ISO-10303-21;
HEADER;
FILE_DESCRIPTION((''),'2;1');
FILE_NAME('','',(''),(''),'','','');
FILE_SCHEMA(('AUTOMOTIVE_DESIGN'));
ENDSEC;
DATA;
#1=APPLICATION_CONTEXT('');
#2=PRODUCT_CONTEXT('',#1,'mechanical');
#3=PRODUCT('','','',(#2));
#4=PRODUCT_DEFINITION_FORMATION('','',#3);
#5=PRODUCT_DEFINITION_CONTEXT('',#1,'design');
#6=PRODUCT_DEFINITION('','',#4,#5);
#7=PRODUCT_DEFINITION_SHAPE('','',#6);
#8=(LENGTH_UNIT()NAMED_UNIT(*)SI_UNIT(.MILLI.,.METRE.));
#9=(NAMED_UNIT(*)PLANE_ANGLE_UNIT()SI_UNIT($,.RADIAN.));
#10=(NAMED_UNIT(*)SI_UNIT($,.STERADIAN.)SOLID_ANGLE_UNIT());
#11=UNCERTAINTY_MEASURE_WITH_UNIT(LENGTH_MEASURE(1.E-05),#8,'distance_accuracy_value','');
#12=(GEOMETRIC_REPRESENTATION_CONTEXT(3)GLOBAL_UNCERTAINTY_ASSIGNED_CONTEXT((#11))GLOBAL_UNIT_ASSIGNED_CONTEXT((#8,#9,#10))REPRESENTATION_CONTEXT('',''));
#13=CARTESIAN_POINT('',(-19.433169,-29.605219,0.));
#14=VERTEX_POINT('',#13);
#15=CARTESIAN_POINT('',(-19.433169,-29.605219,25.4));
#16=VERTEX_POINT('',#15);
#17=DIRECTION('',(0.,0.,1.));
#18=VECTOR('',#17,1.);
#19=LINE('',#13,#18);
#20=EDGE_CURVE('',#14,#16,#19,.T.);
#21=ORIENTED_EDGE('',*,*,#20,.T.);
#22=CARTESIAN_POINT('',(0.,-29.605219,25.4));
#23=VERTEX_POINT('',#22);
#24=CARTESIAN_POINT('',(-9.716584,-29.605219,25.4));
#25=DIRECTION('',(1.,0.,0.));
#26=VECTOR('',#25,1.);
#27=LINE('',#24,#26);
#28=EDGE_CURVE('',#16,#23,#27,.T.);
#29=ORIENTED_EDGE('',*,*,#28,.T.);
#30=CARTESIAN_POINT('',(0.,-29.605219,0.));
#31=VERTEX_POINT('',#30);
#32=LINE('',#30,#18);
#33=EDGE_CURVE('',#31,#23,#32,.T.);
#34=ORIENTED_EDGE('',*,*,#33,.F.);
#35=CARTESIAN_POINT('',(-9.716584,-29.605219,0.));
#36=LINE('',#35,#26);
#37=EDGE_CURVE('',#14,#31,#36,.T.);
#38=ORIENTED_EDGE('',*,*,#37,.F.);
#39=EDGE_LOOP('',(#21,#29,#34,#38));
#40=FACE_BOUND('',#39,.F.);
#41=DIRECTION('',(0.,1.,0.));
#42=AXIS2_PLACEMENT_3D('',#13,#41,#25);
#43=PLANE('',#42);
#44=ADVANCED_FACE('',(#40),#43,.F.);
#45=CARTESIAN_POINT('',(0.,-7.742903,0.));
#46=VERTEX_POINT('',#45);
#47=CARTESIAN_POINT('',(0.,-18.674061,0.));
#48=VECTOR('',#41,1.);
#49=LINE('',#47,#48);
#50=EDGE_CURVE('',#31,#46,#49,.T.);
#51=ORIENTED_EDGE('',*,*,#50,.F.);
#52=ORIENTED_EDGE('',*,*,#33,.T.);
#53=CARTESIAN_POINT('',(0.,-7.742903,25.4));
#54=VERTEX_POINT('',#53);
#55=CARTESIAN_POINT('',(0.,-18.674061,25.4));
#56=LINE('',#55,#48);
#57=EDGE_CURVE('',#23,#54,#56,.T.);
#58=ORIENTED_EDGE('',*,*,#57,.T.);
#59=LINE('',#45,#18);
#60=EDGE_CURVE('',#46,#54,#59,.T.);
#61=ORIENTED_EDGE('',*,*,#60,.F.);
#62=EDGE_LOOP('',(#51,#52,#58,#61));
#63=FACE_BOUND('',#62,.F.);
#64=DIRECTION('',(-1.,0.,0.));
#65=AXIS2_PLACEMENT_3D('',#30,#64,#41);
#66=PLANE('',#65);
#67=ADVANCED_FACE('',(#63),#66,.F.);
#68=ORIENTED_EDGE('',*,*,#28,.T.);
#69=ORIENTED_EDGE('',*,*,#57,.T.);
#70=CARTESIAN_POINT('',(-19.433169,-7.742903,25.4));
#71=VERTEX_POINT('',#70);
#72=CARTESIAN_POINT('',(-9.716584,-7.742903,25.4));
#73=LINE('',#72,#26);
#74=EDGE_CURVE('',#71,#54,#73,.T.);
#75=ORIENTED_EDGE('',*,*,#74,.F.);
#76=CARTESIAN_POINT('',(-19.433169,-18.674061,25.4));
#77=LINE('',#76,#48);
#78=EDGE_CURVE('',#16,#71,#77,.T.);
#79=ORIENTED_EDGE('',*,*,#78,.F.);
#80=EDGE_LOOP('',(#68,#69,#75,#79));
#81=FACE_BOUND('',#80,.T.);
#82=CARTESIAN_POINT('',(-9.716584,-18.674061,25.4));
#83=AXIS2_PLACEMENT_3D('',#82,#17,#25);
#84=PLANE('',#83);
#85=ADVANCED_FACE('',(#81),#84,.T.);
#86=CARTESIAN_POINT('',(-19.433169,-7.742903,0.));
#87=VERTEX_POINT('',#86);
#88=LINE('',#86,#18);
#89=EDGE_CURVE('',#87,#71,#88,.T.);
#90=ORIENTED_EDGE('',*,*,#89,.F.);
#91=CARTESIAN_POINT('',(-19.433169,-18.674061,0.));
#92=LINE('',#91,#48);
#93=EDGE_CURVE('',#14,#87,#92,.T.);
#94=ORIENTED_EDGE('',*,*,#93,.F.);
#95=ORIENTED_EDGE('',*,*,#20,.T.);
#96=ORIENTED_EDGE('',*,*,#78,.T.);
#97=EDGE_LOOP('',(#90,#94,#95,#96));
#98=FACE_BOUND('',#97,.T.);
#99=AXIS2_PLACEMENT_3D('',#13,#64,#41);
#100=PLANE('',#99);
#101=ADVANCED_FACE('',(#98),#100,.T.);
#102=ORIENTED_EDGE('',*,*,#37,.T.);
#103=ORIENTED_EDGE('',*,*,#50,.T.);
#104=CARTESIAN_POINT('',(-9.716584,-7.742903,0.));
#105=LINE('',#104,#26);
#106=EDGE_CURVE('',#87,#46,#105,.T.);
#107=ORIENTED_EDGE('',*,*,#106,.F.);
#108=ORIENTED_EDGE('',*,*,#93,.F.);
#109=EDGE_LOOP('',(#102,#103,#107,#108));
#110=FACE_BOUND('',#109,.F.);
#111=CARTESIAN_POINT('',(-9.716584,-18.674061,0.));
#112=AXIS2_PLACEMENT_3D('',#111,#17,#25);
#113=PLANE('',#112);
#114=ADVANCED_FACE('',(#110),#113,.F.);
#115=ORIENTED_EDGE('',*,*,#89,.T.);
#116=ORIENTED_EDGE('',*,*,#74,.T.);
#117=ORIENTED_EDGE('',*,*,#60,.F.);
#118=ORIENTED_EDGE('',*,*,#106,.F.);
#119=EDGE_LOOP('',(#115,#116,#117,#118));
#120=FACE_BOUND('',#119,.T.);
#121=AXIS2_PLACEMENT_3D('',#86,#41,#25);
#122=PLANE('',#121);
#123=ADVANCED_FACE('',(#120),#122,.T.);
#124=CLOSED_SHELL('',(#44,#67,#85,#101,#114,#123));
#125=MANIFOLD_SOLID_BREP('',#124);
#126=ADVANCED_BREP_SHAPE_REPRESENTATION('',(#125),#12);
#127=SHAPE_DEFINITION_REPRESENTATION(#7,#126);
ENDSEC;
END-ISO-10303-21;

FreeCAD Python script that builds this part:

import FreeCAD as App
import Part
import Sketcher
from FreeCAD import Vector
Q = App.Units.Quantity

doc = App.newDocument("Part")
body = doc.addObject("PartDesign::Body", "Body")

sketch1 = body.newObject("Sketcher::SketchObject", "Sketch")
sketch1.AttachmentSupport = (doc.getObject("XY_Plane"), [""])
sketch1.MapMode = "FlatFace"
sketch1.addGeometry([
    Part.LineSegment(Vector(-51, 41, 0), Vector(-51, 7, 0)),
    Part.LineSegment(Vector(-51, 7, 0), Vector(-12, 7, 0)),
    Part.LineSegment(Vector(-12, 7, 0), Vector(-12, 41, 0)),
    Part.LineSegment(Vector(-12, 41, 0), Vector(-51, 41, 0)),
], False)
sketch1.addConstraint([
    Sketcher.Constraint("Coincident", 0, 2, 1, 1),
    Sketcher.Constraint("Coincident", 1, 2, 2, 1),
    Sketcher.Constraint("Coincident", 2, 2, 3, 1),
    Sketcher.Constraint("Coincident", 3, 2, 0, 1),
    Sketcher.Constraint("Vertical", 0),
    Sketcher.Constraint("Horizontal", 1),
    Sketcher.Constraint("Vertical", 2),
    Sketcher.Constraint("Horizontal", 3),
    Sketcher.Constraint("DistanceX", 1, 1, 1, 2, 39.17323),
    Sketcher.Constraint("DistanceY", 0, 2, 0, 1, 34.004369),
    Sketcher.Constraint("DistanceY", -1, 1, 0, 2, 6.827711),
    Sketcher.Constraint("DistanceX", 0, 2, -1, 1, 50.713018),
])
pad1 = body.newObject("PartDesign::Pad", "Pad")
pad1.Profile = sketch1
pad1.Length = Q("1 in")
body2 = doc.addObject("PartDesign::Body", "Body001")

sketch2 = body2.newObject("Sketcher::SketchObject", "Sketch001")
sketch2.AttachmentSupport = (doc.getObject("XY_Plane001"), [""])
sketch2.MapMode = "FlatFace"
sketch2.addGeometry([
    Part.LineSegment(Vector(-19, -8, 0), Vector(-19, -30, 0)),
    Part.LineSegment(Vector(-19, -30, 0), Vector(0, -30, 0)),
    Part.LineSegment(Vector(0, -30, 0), Vector(0, -8, 0)),
    Part.LineSegment(Vector(0, -8, 0), Vector(-19, -8, 0)),
], False)
sketch2.addConstraint([
    Sketcher.Constraint("Coincident", 0, 2, 1, 1),
    Sketcher.Constraint("Coincident", 1, 2, 2, 1),
    Sketcher.Constraint("Coincident", 2, 2, 3, 1),
    Sketcher.Constraint("Coincident", 3, 2, 0, 1),
    Sketcher.Constraint("Vertical", 0),
    Sketcher.Constraint("Horizontal", 1),
    Sketcher.Constraint("Vertical", 2),
    Sketcher.Constraint("Horizontal", 3),
    Sketcher.Constraint("PointOnObject", 1, 2, -2),
    Sketcher.Constraint("DistanceX", 1, 1, 1, 2, 19.433169),
    Sketcher.Constraint("DistanceY", 0, 2, 0, 1, 21.862316),
    Sketcher.Constraint("DistanceY", 0, 2, -1, 1, 29.605219),
])
pad2 = body2.newObject("PartDesign::Pad", "Pad001")
pad2.Profile = sketch2
pad2.Length = Q("1 in")
body.Visibility = False

doc.recompute()
